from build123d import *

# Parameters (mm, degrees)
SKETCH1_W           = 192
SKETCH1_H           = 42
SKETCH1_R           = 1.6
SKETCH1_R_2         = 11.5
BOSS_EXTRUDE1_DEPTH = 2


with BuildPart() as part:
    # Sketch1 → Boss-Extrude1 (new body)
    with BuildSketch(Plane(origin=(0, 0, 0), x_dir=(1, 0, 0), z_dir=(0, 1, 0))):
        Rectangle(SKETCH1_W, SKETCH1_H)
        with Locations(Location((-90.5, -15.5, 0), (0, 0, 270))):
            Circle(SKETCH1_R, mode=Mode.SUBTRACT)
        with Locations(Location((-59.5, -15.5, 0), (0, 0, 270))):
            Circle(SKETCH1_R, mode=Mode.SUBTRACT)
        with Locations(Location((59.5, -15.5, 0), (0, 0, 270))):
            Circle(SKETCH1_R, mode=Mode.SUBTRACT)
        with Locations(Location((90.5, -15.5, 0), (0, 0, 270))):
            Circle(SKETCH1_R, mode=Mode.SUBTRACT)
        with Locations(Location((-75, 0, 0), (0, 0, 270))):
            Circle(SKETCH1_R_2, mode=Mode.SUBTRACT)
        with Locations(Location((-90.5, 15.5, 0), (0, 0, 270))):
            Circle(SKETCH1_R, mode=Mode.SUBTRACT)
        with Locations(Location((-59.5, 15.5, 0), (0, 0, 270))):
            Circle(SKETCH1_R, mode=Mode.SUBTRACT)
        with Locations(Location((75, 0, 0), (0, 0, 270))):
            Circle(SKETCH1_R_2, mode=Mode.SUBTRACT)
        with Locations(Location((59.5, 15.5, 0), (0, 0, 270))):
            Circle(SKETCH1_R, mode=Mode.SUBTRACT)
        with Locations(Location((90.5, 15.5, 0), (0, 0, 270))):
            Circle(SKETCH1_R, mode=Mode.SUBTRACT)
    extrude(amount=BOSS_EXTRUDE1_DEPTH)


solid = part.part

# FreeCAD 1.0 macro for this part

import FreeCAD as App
import Part
import Sketcher

doc = App.newDocument("Part")
body = doc.addObject("PartDesign::Body", "Body")

# Sketch on XZ plane
sketch1 = doc.addObject("Sketcher::SketchObject", "Sketch")
body.addObject(sketch1)
sketch1.AttachmentSupport = (doc.XZ_Plane, [""])
sketch1.MapMode = "FlatFace"
sketch1.addGeometry(Part.LineSegment(App.Vector(-96, -21, 0), App.Vector(-96, 21, 0)), False)
sketch1.addGeometry(Part.LineSegment(App.Vector(-96, 21, 0), App.Vector(96, 21, 0)), False)
sketch1.addGeometry(Part.LineSegment(App.Vector(96, 21, 0), App.Vector(96, -21, 0)), False)
sketch1.addGeometry(Part.LineSegment(App.Vector(96, -21, 0), App.Vector(-96, -21, 0)), False)
sketch1.addGeometry(Part.Circle(App.Vector(-90.5, 15.5, 0), App.Vector(0, 0, 1), 1.6), False)
sketch1.addGeometry(Part.Circle(App.Vector(-59.5, 15.5, 0), App.Vector(0, 0, 1), 1.6), False)
sketch1.addGeometry(Part.Circle(App.Vector(59.5, 15.5, 0), App.Vector(0, 0, 1), 1.6), False)
sketch1.addGeometry(Part.Circle(App.Vector(90.5, 15.5, 0), App.Vector(0, 0, 1), 1.6), False)
sketch1.addGeometry(Part.Circle(App.Vector(-75, 0, 0), App.Vector(0, 0, 1), 11.5), False)
sketch1.addGeometry(Part.Circle(App.Vector(-90.5, -15.5, 0), App.Vector(0, 0, 1), 1.6), False)
sketch1.addGeometry(Part.Circle(App.Vector(-59.5, -15.5, 0), App.Vector(0, 0, 1), 1.6), False)
sketch1.addGeometry(Part.Circle(App.Vector(75, 0, 0), App.Vector(0, 0, 1), 11.5), False)
sketch1.addGeometry(Part.Circle(App.Vector(59.5, -15.5, 0), App.Vector(0, 0, 1), 1.6), False)
sketch1.addGeometry(Part.Circle(App.Vector(90.5, -15.5, 0), App.Vector(0, 0, 1), 1.6), False)
sketch1.addConstraint(Sketcher.Constraint("Coincident", 0, 2, 1, 1))
sketch1.addConstraint(Sketcher.Constraint("Coincident", 1, 2, 2, 1))
sketch1.addConstraint(Sketcher.Constraint("Coincident", 2, 2, 3, 1))
sketch1.addConstraint(Sketcher.Constraint("Coincident", 3, 2, 0, 1))
sketch1.addConstraint(Sketcher.Constraint("Vertical", 0))
sketch1.addConstraint(Sketcher.Constraint("Horizontal", 1))
sketch1.addConstraint(Sketcher.Constraint("Vertical", 2))
sketch1.addConstraint(Sketcher.Constraint("Horizontal", 3))
sketch1.addConstraint(Sketcher.Constraint("Equal", 4, 5))
sketch1.addConstraint(Sketcher.Constraint("Equal", 5, 6))
sketch1.addConstraint(Sketcher.Constraint("Equal", 6, 7))
sketch1.addConstraint(Sketcher.Constraint("Equal", 7, 9))
sketch1.addConstraint(Sketcher.Constraint("Equal", 9, 10))
sketch1.addConstraint(Sketcher.Constraint("Equal", 8, 11))
sketch1.addConstraint(Sketcher.Constraint("Equal", 10, 12))
sketch1.addConstraint(Sketcher.Constraint("Equal", 12, 13))
sketch1.addConstraint(Sketcher.Constraint("Symmetric", 7, 3, 9, 3, -1, 1))
sketch1.addConstraint(Sketcher.Constraint("Symmetric", 6, 3, 10, 3, -1, 1))
sketch1.addConstraint(Sketcher.Constraint("Symmetric", 8, 3, 11, 3, -1, 1))
sketch1.addConstraint(Sketcher.Constraint("Symmetric", 5, 3, 12, 3, -1, 1))
sketch1.addConstraint(Sketcher.Constraint("Symmetric", 4, 3, 13, 3, -1, 1))
sketch1.addConstraint(Sketcher.Constraint("Symmetric", 0, 2, 2, 2, -1, 1))
sketch1.addConstraint(Sketcher.Constraint("Symmetric", 5, 3, 6, 3, -2))
sketch1.addConstraint(Sketcher.Constraint("Symmetric", 4, 3, 7, 3, -2))
sketch1.addConstraint(Sketcher.Constraint("PointOnObject", 8, 3, -1))
sketch1.addConstraint(Sketcher.Constraint("Horizontal", 4, 3, 5, 3))
sketch1.addConstraint(Sketcher.Constraint("Diameter", 8, 23.0))
sketch1.addConstraint(Sketcher.Constraint("Diameter", 4, 3.2))
sketch1.addConstraint(Sketcher.Constraint("DistanceX", 1, 1, 1, 2, 192.0))
sketch1.addConstraint(Sketcher.Constraint("DistanceY", 0, 1, 0, 2, 42.0))
sketch1.addConstraint(Sketcher.Constraint("DistanceX", 8, 3, -1, 1, 75.0))
sketch1.addConstraint(Sketcher.Constraint("DistanceX", 4, 3, 5, 3, 31.0))
sketch1.addConstraint(Sketcher.Constraint("DistanceX", 5, 3, 6, 3, 119.0))
sketch1.addConstraint(Sketcher.Constraint("DistanceY", 9, 3, 4, 3, 31.0))
pad1 = doc.addObject("PartDesign::Pad", "Pad")
body.addObject(pad1)
pad1.Profile = sketch1
pad1.Length = 2
pad1.Reversed = True

doc.recompute()
